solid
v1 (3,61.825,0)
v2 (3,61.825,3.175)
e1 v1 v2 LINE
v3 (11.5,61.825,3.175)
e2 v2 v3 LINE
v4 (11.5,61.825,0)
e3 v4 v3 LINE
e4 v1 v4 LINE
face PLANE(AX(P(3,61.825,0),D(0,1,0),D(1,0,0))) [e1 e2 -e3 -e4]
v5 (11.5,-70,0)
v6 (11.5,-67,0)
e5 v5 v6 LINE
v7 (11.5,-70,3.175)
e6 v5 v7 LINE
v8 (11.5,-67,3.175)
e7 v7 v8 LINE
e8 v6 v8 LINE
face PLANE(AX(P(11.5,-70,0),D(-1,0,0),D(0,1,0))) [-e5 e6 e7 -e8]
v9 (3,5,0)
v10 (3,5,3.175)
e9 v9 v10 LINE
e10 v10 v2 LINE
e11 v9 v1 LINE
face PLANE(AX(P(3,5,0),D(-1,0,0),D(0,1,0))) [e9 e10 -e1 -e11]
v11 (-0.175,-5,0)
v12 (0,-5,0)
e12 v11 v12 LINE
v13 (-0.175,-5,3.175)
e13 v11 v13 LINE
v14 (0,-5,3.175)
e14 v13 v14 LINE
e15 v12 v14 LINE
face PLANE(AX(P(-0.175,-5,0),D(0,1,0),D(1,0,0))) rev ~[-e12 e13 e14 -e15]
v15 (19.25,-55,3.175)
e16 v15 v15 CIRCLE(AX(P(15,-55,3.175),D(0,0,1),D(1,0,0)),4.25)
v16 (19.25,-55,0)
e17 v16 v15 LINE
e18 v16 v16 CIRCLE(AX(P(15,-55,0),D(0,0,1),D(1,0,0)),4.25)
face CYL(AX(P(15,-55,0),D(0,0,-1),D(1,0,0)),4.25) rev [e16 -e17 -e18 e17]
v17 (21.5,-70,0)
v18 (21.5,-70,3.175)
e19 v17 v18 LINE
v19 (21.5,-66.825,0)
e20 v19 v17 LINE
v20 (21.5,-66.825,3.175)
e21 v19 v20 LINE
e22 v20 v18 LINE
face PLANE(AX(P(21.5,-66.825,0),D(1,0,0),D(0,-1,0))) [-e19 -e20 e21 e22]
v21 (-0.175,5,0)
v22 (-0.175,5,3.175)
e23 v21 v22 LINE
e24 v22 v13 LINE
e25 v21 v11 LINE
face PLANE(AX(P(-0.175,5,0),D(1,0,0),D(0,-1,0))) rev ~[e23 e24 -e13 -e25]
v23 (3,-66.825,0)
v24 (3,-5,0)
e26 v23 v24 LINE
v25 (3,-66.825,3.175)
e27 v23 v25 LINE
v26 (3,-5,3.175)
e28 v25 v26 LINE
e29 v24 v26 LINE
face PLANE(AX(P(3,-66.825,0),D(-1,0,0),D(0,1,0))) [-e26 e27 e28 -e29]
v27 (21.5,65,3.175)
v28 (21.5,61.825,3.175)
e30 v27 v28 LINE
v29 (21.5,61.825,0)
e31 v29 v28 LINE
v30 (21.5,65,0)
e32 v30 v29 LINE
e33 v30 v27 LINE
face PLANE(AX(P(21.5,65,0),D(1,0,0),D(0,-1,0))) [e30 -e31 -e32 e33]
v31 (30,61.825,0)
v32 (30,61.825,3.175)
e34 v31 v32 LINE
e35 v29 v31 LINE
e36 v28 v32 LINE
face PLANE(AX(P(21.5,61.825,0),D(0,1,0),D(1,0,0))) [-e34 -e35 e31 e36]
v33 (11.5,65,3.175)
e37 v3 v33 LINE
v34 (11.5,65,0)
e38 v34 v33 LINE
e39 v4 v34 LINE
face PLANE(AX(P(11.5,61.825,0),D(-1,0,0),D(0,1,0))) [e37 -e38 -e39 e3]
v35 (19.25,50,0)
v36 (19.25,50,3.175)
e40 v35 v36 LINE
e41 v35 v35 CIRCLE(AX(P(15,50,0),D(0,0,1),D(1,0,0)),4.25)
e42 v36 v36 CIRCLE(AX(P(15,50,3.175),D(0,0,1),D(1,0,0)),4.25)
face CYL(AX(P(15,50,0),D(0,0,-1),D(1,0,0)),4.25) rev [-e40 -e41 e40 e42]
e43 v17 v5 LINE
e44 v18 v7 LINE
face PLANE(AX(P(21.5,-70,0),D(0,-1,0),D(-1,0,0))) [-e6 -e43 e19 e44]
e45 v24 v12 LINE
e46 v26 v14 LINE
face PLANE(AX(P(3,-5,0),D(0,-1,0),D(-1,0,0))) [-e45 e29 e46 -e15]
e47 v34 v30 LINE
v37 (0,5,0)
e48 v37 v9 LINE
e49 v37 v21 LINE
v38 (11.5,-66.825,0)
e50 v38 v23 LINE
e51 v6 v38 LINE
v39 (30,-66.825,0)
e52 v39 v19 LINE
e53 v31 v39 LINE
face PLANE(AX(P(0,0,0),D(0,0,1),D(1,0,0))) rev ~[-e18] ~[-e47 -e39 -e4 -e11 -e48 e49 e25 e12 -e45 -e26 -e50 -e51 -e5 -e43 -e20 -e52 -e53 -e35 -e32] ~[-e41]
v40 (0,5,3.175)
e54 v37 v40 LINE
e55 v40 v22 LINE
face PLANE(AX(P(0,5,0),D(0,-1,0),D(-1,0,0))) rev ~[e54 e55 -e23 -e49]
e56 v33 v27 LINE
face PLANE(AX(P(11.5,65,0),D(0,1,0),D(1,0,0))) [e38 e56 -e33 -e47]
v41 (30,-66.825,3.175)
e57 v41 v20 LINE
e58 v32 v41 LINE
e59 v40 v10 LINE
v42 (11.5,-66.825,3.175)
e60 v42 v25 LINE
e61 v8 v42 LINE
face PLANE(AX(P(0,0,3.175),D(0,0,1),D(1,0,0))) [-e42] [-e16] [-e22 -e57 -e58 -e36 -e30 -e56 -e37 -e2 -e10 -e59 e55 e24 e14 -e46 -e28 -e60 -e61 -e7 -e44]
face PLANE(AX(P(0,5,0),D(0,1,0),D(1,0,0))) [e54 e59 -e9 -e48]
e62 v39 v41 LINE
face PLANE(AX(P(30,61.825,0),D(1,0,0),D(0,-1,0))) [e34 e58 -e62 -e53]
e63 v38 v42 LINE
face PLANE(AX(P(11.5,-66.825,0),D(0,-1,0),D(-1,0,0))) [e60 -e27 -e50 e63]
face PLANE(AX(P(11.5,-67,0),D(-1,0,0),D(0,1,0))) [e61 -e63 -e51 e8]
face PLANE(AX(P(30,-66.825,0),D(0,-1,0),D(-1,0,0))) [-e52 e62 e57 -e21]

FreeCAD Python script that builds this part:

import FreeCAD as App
import Part
import Sketcher


def add_polygon(sketch, points):
    """Adds a closed chain of lines whose ends are joined by coincident constraints."""
    first, n = sketch.GeometryCount, len(points)
    for a, b in zip(points, points[1:] + points[:1]):
        sketch.addGeometry(Part.LineSegment(App.Vector(*a, 0), App.Vector(*b, 0)), False)
    for i in range(n):
        sketch.addConstraint(Sketcher.Constraint("Coincident", first + i, 2, first + (i + 1) % n, 1))

doc = App.newDocument("Part")
body = doc.addObject("PartDesign::Body", "Body")

sketch1 = doc.addObject("Sketcher::SketchObject", "Sketch")
body.addObject(sketch1)
sketch1.AttachmentSupport = (doc.XY_Plane, [""])
sketch1.MapMode = "FlatFace"
add_polygon(sketch1, [(3, 61.825), (3, 5), (-0.175, 5), (-0.175, -5), (3, -5), (3, -66.825), (11.5, -66.825), (11.5, -70), (21.5, -70), (21.5, -66.825), (30, -66.825), (30, 61.825), (21.5, 61.825), (21.5, 65), (11.5, 65), (11.5, 61.825)])
sketch1.addGeometry(Part.Circle(App.Vector(15, -55, 0), App.Vector(0, 0, 1), 4.25), False)
sketch1.addGeometry(Part.Circle(App.Vector(15, 50, 0), App.Vector(0, 0, 1), 4.25), False)
sketch1.addConstraint([
    Sketcher.Constraint("Vertical", 0),
    Sketcher.Constraint("Horizontal", 1),
    Sketcher.Constraint("Vertical", 2),
    Sketcher.Constraint("Horizontal", 3),
    Sketcher.Constraint("Vertical", 4),
    Sketcher.Constraint("Horizontal", 5),
    Sketcher.Constraint("Vertical", 6),
    Sketcher.Constraint("Horizontal", 7),
    Sketcher.Constraint("Vertical", 8),
    Sketcher.Constraint("Horizontal", 9),
    Sketcher.Constraint("Vertical", 10),
    Sketcher.Constraint("Horizontal", 11),
    Sketcher.Constraint("Vertical", 12),
    Sketcher.Constraint("Horizontal", 13),
    Sketcher.Constraint("Vertical", 14),
    Sketcher.Constraint("Horizontal", 15),
    Sketcher.Constraint("Equal", 16, 17),
    Sketcher.Constraint("Symmetric", 0, 2, 3, 2, -1),
    Sketcher.Constraint("Horizontal", 5, 2, 8, 2),
    Sketcher.Constraint("Horizontal", 11, 2, 14, 2),
    Sketcher.Constraint("Vertical", 16, 3, 17, 3),
    Sketcher.Constraint("Vertical", 8, 2, 11, 2),
    Sketcher.Constraint("Vertical", 6, 2, 13, 2),
    Sketcher.Constraint("Equal", 5, 9),
    Sketcher.Constraint("Equal", 13, 2),
    Sketcher.Constraint("Equal", 3, 6),
    Sketcher.Constraint("Equal", 8, 12),
    Sketcher.Constraint("Diameter", 16, 8.5),
    Sketcher.Constraint("DistanceX", 1, 2, 1, 1, 3.175),
    Sketcher.Constraint("DistanceX", 7, 1, 7, 2, 10.0),
    Sketcher.Constraint("DistanceX", 5, 1, 5, 2, 8.5),
    Sketcher.Constraint("DistanceX", -1, 1, 16, 3, 15.0),
    Sketcher.Constraint("DistanceY", 16, 3, -1, 1, 55.0),
    Sketcher.Constraint("DistanceY", -1, 1, 17, 3, 50.0),
    Sketcher.Constraint("DistanceX", -1, 1, 0, 2, 3.0),
    Sketcher.Constraint("DistanceY", 6, 2, -1, 1, 70.0),
    Sketcher.Constraint("DistanceY", -1, 1, 12, 2, 65.0),
])
pad1 = doc.addObject("PartDesign::Pad", "Pad")
body.addObject(pad1)
pad1.Profile = sketch1
pad1.Length = 3.175

doc.recompute()
